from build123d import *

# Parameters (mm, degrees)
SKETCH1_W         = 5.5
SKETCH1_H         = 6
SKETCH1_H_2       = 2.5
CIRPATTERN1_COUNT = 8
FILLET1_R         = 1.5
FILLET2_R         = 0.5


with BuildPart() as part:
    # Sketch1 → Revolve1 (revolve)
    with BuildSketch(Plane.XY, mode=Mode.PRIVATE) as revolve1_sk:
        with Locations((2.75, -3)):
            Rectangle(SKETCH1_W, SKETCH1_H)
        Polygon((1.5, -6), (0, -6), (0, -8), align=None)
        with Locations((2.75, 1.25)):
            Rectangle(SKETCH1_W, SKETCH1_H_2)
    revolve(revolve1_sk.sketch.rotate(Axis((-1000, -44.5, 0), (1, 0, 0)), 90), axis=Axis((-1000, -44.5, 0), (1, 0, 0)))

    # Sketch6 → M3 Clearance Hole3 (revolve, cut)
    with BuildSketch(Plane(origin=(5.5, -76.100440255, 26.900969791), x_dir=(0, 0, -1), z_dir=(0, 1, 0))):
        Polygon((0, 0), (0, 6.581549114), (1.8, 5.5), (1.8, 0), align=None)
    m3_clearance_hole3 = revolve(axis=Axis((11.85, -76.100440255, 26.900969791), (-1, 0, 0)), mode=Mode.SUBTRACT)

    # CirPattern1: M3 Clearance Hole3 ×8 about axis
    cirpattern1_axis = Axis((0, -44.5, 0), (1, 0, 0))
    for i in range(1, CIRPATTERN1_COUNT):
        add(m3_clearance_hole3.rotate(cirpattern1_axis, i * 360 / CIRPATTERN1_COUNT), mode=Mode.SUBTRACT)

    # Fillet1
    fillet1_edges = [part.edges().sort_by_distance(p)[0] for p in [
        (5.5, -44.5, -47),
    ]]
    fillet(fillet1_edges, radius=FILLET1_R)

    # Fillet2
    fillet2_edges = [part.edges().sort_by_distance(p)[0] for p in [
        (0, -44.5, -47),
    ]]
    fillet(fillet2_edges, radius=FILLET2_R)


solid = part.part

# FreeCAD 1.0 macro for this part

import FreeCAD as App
import Part
import Sketcher
Q = App.Units.Quantity


def edges_at(feature, points):
    """Names of the edges that pass closest to the given points."""
    edges = feature.Shape.Edges
    near = lambda p: min(range(len(edges)), key=lambda i: edges[i].distToShape(Part.Vertex(*p))[0])
    return sorted({f"Edge{near(p) + 1}" for p in points})

doc = App.newDocument("Part")
body = doc.addObject("PartDesign::Body", "Body")

# Sketch on XY plane
sketch1 = body.newObject("Sketcher::SketchObject", "Sketch")
sketch1.AttachmentSupport = (doc.getObject("XY_Plane"), [""])
sketch1.MapMode = "FlatFace"
sketch1.addGeometry([
    Part.LineSegment(App.Vector(0, -8, 0), App.Vector(1.5, -6, 0)),  # 0
    Part.LineSegment(App.Vector(1.5, -6, 0), App.Vector(5.5, -6, 0)),  # 1
    Part.LineSegment(App.Vector(5.5, -6, 0), App.Vector(5.5, 2.5, 0)),  # 2
    Part.LineSegment(App.Vector(5.5, 2.5, 0), App.Vector(0, 2.5, 0)),  # 3
    Part.LineSegment(App.Vector(0, 2.5, 0), App.Vector(0, -8, 0)),  # 4
], False)
sketch1.addGeometry(Part.LineSegment(App.Vector(0, -44.5, 0), App.Vector(5.5, -44.5, 0)), True)  # axis
sketch1.addConstraint([
    Sketcher.Constraint("Coincident", 0, 2, 1, 1),
    Sketcher.Constraint("Coincident", 1, 2, 2, 1),
    Sketcher.Constraint("Coincident", 2, 2, 3, 1),
    Sketcher.Constraint("Coincident", 3, 2, 4, 1),
    Sketcher.Constraint("Coincident", 4, 2, 0, 1),
    Sketcher.Constraint("Horizontal", 1),
    Sketcher.Constraint("Vertical", 2),
    Sketcher.Constraint("Horizontal", 3),
    Sketcher.Constraint("Vertical", 4),
    Sketcher.Constraint("Horizontal", 5),
    Sketcher.Constraint("PointOnObject", 3, 2, -2),
    Sketcher.Constraint("PointOnObject", 5, 1, -2),
    Sketcher.Constraint("Vertical", 2, 2, 5, 2),
    Sketcher.Constraint("DistanceX", 1, 1, 1, 2, 4.0),
    Sketcher.Constraint("DistanceX", 3, 2, 3, 1, 5.5),
    Sketcher.Constraint("DistanceY", 2, 1, 2, 2, 8.5),
    Sketcher.Constraint("DistanceY", 4, 2, 4, 1, 10.5),
    Sketcher.Constraint("DistanceY", 0, 2, -1, 1, 6.0),
    Sketcher.Constraint("DistanceY", 5, 1, 3, 2, 47.0),
])
revolution = body.newObject("PartDesign::Revolution", "Revolution")
revolution.Profile = sketch1
revolution.ReferenceAxis = (sketch1, ["Axis0"])
revolution.Angle = 360

# Sketch on XZ plane
sketch2 = body.newObject("Sketcher::SketchObject", "Sketch001")
sketch2.AttachmentSupport = (doc.getObject("XZ_Plane"), [""])
sketch2.MapMode = "FlatFace"
sketch2.AttachmentOffset = App.Placement(App.Vector(0, 0, 76.10044), App.Rotation())
sketch2.addGeometry([
    Part.LineSegment(App.Vector(-1.1, 26.9, 0), App.Vector(5.5, 26.9, 0)),
    Part.LineSegment(App.Vector(5.5, 26.9, 0), App.Vector(5.5, 25.1, 0)),
    Part.LineSegment(App.Vector(5.5, 25.1, 0), App.Vector(0, 25.1, 0)),
    Part.LineSegment(App.Vector(0, 25.1, 0), App.Vector(-1.1, 26.9, 0)),
], False)
sketch2.addGeometry(Part.LineSegment(App.Vector(5.5, 26.9, 0), App.Vector(-1.1, 26.9, 0)), True)  # axis
sketch2.addConstraint([
    Sketcher.Constraint("Coincident", 0, 2, 1, 1),
    Sketcher.Constraint("Coincident", 1, 2, 2, 1),
    Sketcher.Constraint("Coincident", 2, 2, 3, 1),
    Sketcher.Constraint("Coincident", 3, 2, 0, 1),
    Sketcher.Constraint("Horizontal", 0),
    Sketcher.Constraint("Vertical", 1),
    Sketcher.Constraint("Horizontal", 2),
    Sketcher.Constraint("Horizontal", 4),
    Sketcher.Constraint("Coincident", 4, 1, 0, 2),
    Sketcher.Constraint("PointOnObject", 2, 2, -2),
    Sketcher.Constraint("Equal", 0, 4),
    Sketcher.Constraint("Angle", 3, Q("121 deg")),
    Sketcher.Constraint("DistanceX", 2, 2, 2, 1, 5.5),
    Sketcher.Constraint("DistanceY", 1, 2, 1, 1, 1.8),
    Sketcher.Constraint("DistanceY", -1, 1, 0, 2, 26.90097),
])
groove = body.newObject("PartDesign::Groove", "Groove")
groove.Profile = sketch2
groove.ReferenceAxis = (sketch2, ["Axis0"])
groove.Angle = 360
doc.recompute()

datumline = body.newObject("PartDesign::Line", "DatumLine")
datumline.Placement = App.Placement(App.Vector(0, -44.5, 0), App.Rotation(App.Vector(0, 0, 1), App.Vector(1, 0, 0)))
polarpattern = body.newObject("PartDesign::PolarPattern", "PolarPattern")
polarpattern.Originals = [groove]
polarpattern.Axis = (datumline, [""])
polarpattern.Angle = 360
polarpattern.Occurrences = 8
body.Tip = polarpattern
doc.recompute()

fillet = body.newObject("PartDesign::Fillet", "Fillet")
fillet.Base = (polarpattern, edges_at(polarpattern, [(5.5, -44.5, -47)]))
fillet.Radius = 1.5
doc.recompute()

fillet2 = body.newObject("PartDesign::Fillet", "Fillet001")
fillet2.Base = (fillet, edges_at(fillet, [(0, -44.5, -47)]))
fillet2.Radius = 0.5

doc.recompute()
